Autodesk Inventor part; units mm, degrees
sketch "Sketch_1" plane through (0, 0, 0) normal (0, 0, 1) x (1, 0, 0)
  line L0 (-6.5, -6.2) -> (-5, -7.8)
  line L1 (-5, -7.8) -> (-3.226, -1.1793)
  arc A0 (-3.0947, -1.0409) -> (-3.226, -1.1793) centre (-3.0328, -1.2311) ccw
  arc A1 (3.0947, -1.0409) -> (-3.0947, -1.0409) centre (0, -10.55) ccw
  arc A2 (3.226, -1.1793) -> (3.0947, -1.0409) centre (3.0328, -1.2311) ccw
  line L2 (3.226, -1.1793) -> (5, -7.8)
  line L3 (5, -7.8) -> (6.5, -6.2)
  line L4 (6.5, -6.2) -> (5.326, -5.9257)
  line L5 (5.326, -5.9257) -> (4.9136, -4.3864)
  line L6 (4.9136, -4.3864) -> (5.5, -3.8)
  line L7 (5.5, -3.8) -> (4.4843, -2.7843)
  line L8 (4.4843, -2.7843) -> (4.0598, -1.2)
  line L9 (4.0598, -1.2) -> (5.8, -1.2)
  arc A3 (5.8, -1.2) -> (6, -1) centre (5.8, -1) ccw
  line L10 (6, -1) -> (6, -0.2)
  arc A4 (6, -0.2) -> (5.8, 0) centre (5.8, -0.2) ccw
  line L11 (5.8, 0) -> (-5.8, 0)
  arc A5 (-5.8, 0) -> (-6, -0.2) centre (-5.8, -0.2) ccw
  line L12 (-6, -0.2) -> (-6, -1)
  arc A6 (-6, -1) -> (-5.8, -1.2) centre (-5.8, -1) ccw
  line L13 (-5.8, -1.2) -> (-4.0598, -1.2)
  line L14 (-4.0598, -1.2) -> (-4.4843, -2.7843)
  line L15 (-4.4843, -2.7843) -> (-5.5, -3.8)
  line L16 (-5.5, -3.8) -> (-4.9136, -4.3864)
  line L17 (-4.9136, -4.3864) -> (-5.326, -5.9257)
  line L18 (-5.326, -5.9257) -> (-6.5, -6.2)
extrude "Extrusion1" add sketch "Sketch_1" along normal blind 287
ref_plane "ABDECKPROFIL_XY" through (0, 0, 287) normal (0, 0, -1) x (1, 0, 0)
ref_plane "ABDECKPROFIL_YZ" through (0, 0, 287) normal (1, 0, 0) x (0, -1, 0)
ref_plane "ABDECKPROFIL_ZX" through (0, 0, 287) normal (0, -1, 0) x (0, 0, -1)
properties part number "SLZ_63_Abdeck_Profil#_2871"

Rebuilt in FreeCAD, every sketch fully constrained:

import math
import FreeCAD as App
import Part
import Sketcher

V = App.Vector
Q = App.Units.Quantity

doc = App.newDocument("Part")
params = doc.addObject("Spreadsheet::Sheet", "Params")
for row, (alias, value) in enumerate([
    ("sketch1_radius", "10 mm"),
    ("sketch1_radius2", "0.2 mm"),
    ("sketch1_width", "11.6 mm"),
    ("sketch1_height", "0.8 mm"),
    ("pad1_length", "287 mm"),
], start=1):
    params.set(f"A{row}", alias)
    params.set(f"B{row}", "=" + value)
    params.setAlias(f"B{row}", alias)

body = doc.addObject("PartDesign::Body", "Body")

# Sketch on XY plane
sketch1 = body.newObject("Sketcher::SketchObject", "Sketch")
sketch1.AttachmentSupport = (doc.getObject("XY_Plane"), [""])
sketch1.MapMode = "FlatFace"
sketch1.addGeometry(Part.LineSegment(V(-5.33, -5.93, 0), V(-6.5, -6.2, 0)), False)
sketch1.addGeometry(Part.LineSegment(V(-6.5, -6.2, 0), V(-5, -7.8, 0)), False)
sketch1.addGeometry(Part.LineSegment(V(-5, -7.8, 0), V(-3.23, -1.18, 0)), False)
sketch1.addGeometry(Part.ArcOfCircle(Part.Circle(V(-3.03, -1.23, 0), V(0, 0, 1), 0.2), math.radians(108), math.radians(165)), False)
sketch1.addGeometry(Part.ArcOfCircle(Part.Circle(V(0, -10.55, 0), V(0, 0, 1), 10), math.radians(72), math.radians(108)), False)
sketch1.addGeometry(Part.ArcOfCircle(Part.Circle(V(3.03, -1.23, 0), V(0, 0, 1), 0.2), math.radians(15), math.radians(72)), False)
sketch1.addGeometry(Part.LineSegment(V(3.23, -1.18, 0), V(5, -7.8, 0)), False)
sketch1.addGeometry(Part.LineSegment(V(5, -7.8, 0), V(6.5, -6.2, 0)), False)
sketch1.addGeometry(Part.LineSegment(V(6.5, -6.2, 0), V(5.33, -5.93, 0)), False)
sketch1.addGeometry(Part.LineSegment(V(5.33, -5.93, 0), V(4.91, -4.39, 0)), False)
sketch1.addGeometry(Part.LineSegment(V(4.91, -4.39, 0), V(5.5, -3.8, 0)), False)
sketch1.addGeometry(Part.LineSegment(V(5.5, -3.8, 0), V(4.48, -2.78, 0)), False)
sketch1.addGeometry(Part.LineSegment(V(4.48, -2.78, 0), V(4.06, -1.2, 0)), False)
sketch1.addGeometry(Part.LineSegment(V(4.06, -1.2, 0), V(5.8, -1.2, 0)), False)
sketch1.addGeometry(Part.ArcOfCircle(Part.Circle(V(5.8, -1, 0), V(0, 0, 1), 0.2), math.radians(-90), math.radians(0)), False)
sketch1.addGeometry(Part.LineSegment(V(6, -1, 0), V(6, -0.2, 0)), False)
sketch1.addGeometry(Part.ArcOfCircle(Part.Circle(V(5.8, -0.2, 0), V(0, 0, 1), 0.2), math.radians(0), math.radians(90)), False)
sketch1.addGeometry(Part.LineSegment(V(5.8, 0, 0), V(-5.8, 0, 0)), False)
sketch1.addGeometry(Part.ArcOfCircle(Part.Circle(V(-5.8, -0.2, 0), V(0, 0, 1), 0.2), math.radians(90), math.radians(180)), False)
sketch1.addGeometry(Part.LineSegment(V(-6, -0.2, 0), V(-6, -1, 0)), False)
sketch1.addGeometry(Part.ArcOfCircle(Part.Circle(V(-5.8, -1, 0), V(0, 0, 1), 0.2), math.radians(180), math.radians(270)), False)
sketch1.addGeometry(Part.LineSegment(V(-5.8, -1.2, 0), V(-4.06, -1.2, 0)), False)
sketch1.addGeometry(Part.LineSegment(V(-4.06, -1.2, 0), V(-4.48, -2.78, 0)), False)
sketch1.addGeometry(Part.LineSegment(V(-4.48, -2.78, 0), V(-5.5, -3.8, 0)), False)
sketch1.addGeometry(Part.LineSegment(V(-5.5, -3.8, 0), V(-4.91, -4.39, 0)), False)
sketch1.addGeometry(Part.LineSegment(V(-4.91, -4.39, 0), V(-5.33, -5.93, 0)), False)
sketch1.addConstraint(Sketcher.Constraint("Coincident", 0, 2, 1, 1))
sketch1.addConstraint(Sketcher.Constraint("Coincident", 1, 2, 2, 1))
sketch1.addConstraint(Sketcher.Constraint("Tangent", 2, 2, 3, 2))
sketch1.addConstraint(Sketcher.Constraint("Tangent", 3, 1, 4, 2))
sketch1.addConstraint(Sketcher.Constraint("Tangent", 4, 1, 5, 2))
sketch1.addConstraint(Sketcher.Constraint("Tangent", 5, 1, 6, 1))
sketch1.addConstraint(Sketcher.Constraint("Coincident", 6, 2, 7, 1))
sketch1.addConstraint(Sketcher.Constraint("Coincident", 7, 2, 8, 1))
sketch1.addConstraint(Sketcher.Constraint("Coincident", 8, 2, 9, 1))
sketch1.addConstraint(Sketcher.Constraint("Coincident", 9, 2, 10, 1))
sketch1.addConstraint(Sketcher.Constraint("Coincident", 10, 2, 11, 1))
sketch1.addConstraint(Sketcher.Constraint("Coincident", 11, 2, 12, 1))
sketch1.addConstraint(Sketcher.Constraint("Coincident", 12, 2, 13, 1))
sketch1.addConstraint(Sketcher.Constraint("Tangent", 13, 2, 14, 1))
sketch1.addConstraint(Sketcher.Constraint("Tangent", 14, 2, 15, 1))
sketch1.addConstraint(Sketcher.Constraint("Tangent", 15, 2, 16, 1))
sketch1.addConstraint(Sketcher.Constraint("Tangent", 16, 2, 17, 1))
sketch1.addConstraint(Sketcher.Constraint("Tangent", 17, 2, 18, 1))
sketch1.addConstraint(Sketcher.Constraint("Tangent", 18, 2, 19, 1))
sketch1.addConstraint(Sketcher.Constraint("Tangent", 19, 2, 20, 1))
sketch1.addConstraint(Sketcher.Constraint("Tangent", 20, 2, 21, 1))
sketch1.addConstraint(Sketcher.Constraint("Coincident", 21, 2, 22, 1))
sketch1.addConstraint(Sketcher.Constraint("Coincident", 22, 2, 23, 1))
sketch1.addConstraint(Sketcher.Constraint("Coincident", 23, 2, 24, 1))
sketch1.addConstraint(Sketcher.Constraint("Coincident", 24, 2, 25, 1))
sketch1.addConstraint(Sketcher.Constraint("Coincident", 25, 2, 0, 1))
sketch1.addConstraint(Sketcher.Constraint("Horizontal", 13))
sketch1.addConstraint(Sketcher.Constraint("Vertical", 15))
sketch1.addConstraint(Sketcher.Constraint("Horizontal", 17))
sketch1.addConstraint(Sketcher.Constraint("Vertical", 19))
sketch1.addConstraint(Sketcher.Constraint("Horizontal", 21))
sketch1.addConstraint(Sketcher.Constraint("Equal", 3, 5))
sketch1.addConstraint(Sketcher.Constraint("Equal", 5, 14))
sketch1.addConstraint(Sketcher.Constraint("Equal", 14, 16))
sketch1.addConstraint(Sketcher.Constraint("Equal", 16, 18))
sketch1.addConstraint(Sketcher.Constraint("Equal", 18, 20))
sketch1.addConstraint(Sketcher.Constraint("Symmetric", 16, 2, 17, 2, -1, 1))
sketch1.addConstraint(Sketcher.Constraint("Symmetric", 3, 3, 5, 3, -2))
sketch1.addConstraint(Sketcher.Constraint("Symmetric", 1, 2, 6, 2, -2))
sketch1.addConstraint(Sketcher.Constraint("Symmetric", 0, 2, 7, 2, -2))
sketch1.addConstraint(Sketcher.Constraint("Symmetric", 12, 2, 21, 2, -2))
sketch1.addConstraint(Sketcher.Constraint("Symmetric", 11, 2, 22, 2, -2))
sketch1.addConstraint(Sketcher.Constraint("Symmetric", 10, 2, 23, 2, -2))
sketch1.addConstraint(Sketcher.Constraint("Symmetric", 9, 2, 24, 2, -2))
sketch1.addConstraint(Sketcher.Constraint("Symmetric", 8, 2, 25, 2, -2))
sketch1.addConstraint(Sketcher.Constraint("Parallel", 6, 9))
sketch1.addConstraint(Sketcher.Constraint("Perpendicular", 10, 11))
sketch1.addConstraint(Sketcher.Constraint("Parallel", 9, 12))
sketch1.addConstraint(Sketcher.Constraint("Perpendicular", 11, 23))
sketch1.addConstraint(Sketcher.Constraint("Radius", 4, 10.0))
sketch1.addConstraint(Sketcher.Constraint("Radius", 3, 0.2))
sketch1.addConstraint(Sketcher.Constraint("Angle", 2, Q("75 deg")))
sketch1.addConstraint(Sketcher.Constraint("DistanceX", 17, 2, 17, 1, 11.6))
sketch1.addConstraint(Sketcher.Constraint("DistanceY", 15, 1, 15, 2, 0.8))
sketch1.addConstraint(Sketcher.Constraint("DistanceX", 1, 2, -1, 1, 5.0))
sketch1.addConstraint(Sketcher.Constraint("DistanceY", 0, 2, 18, 3, 6.0))
sketch1.addConstraint(Sketcher.Constraint("DistanceX", 10, 2, 7, 2, 1.0))
sketch1.addConstraint(Sketcher.Constraint("DistanceX", 0, 2, -1, 1, 6.5))
sketch1.addConstraint(Sketcher.Constraint("DistanceY", 1, 2, -1, 1, 7.8))
sketch1.addConstraint(Sketcher.Constraint("DistanceY", 10, 2, -1, 1, 3.8))
sketch1.addConstraint(Sketcher.Constraint("Angle", 0, Q("-166.849 deg")))
sketch1.addConstraint(Sketcher.Constraint("DistanceX", 5, 1, 8, 2, 2.1))
sketch1.addConstraint(Sketcher.Constraint("DistanceY", 4, 3, -1, 1, 10.55))
sketch1.addConstraint(Sketcher.Constraint("DistanceX", 13, 1, 13, 2, 1.7402))
sketch1.setExpression("Constraints[49]", "Params.sketch1_radius")
sketch1.setExpression("Constraints[50]", "Params.sketch1_radius2")
sketch1.setExpression("Constraints[52]", "Params.sketch1_width")
sketch1.setExpression("Constraints[53]", "Params.sketch1_height")
pad1 = body.newObject("PartDesign::Pad", "Pad")
pad1.Profile = sketch1
pad1.setExpression("Length", "Params.pad1_length")

doc.recompute()
